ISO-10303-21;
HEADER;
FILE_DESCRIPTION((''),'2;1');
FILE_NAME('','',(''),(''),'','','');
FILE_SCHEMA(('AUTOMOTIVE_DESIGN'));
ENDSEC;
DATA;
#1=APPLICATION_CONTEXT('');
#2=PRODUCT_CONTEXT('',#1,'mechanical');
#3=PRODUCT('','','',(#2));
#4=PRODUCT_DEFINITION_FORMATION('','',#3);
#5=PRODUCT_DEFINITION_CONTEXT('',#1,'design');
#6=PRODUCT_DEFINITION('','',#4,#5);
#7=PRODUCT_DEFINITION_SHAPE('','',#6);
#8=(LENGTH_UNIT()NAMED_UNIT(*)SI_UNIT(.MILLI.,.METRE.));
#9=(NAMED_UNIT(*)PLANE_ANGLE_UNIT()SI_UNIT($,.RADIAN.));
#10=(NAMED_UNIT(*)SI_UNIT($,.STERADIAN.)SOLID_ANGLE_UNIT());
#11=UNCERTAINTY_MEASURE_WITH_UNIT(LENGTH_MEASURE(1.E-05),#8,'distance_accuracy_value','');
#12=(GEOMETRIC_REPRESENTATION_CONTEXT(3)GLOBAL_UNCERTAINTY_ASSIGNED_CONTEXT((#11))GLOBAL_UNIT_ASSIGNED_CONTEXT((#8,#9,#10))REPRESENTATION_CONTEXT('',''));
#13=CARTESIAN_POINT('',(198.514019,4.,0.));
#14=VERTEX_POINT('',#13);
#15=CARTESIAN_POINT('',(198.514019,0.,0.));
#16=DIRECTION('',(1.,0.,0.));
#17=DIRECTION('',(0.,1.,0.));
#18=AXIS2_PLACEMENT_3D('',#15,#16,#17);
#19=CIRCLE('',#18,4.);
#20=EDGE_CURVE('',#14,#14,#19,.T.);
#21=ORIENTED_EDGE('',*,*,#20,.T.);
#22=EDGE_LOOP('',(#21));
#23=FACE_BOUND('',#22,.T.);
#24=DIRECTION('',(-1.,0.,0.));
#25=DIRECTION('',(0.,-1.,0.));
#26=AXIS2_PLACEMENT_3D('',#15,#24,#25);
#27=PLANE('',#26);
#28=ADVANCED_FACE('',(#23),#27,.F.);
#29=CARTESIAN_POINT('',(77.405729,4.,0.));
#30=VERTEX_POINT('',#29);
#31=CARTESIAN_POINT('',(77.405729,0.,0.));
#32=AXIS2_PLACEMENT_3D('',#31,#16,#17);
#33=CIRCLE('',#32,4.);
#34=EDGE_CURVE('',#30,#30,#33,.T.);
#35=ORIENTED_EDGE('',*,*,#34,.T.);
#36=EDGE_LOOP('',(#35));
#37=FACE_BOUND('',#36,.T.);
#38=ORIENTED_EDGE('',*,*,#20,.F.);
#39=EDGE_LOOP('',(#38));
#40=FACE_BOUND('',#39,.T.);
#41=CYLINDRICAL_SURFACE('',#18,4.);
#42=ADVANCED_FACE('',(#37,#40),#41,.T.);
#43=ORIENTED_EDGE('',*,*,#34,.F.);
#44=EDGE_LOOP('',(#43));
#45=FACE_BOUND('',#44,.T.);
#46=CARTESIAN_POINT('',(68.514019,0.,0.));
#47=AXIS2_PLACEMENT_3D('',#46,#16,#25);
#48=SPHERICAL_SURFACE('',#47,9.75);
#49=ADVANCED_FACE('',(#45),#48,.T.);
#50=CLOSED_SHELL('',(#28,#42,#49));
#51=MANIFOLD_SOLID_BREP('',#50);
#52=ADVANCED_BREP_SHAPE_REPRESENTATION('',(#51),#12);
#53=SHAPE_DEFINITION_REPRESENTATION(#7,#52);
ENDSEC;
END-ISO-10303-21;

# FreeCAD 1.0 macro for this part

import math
import FreeCAD as App
import Part
import Sketcher
from FreeCAD import Vector

doc = App.newDocument("Part")
body = doc.addObject("PartDesign::Body", "Body")

# Sketch on XY plane
sketch1 = body.newObject("Sketcher::SketchObject", "Sketch")
sketch1.AttachmentSupport = (doc.getObject("XY_Plane"), [""])
sketch1.MapMode = "FlatFace"
sketch1.addGeometry(Part.LineSegment(Vector(198.514019, -4, 0), Vector(198.514019, 0, 0)), False)
sketch1.addGeometry(Part.LineSegment(Vector(198.514019, 0, 0), Vector(58.764019, 0, 0)), False)
sketch1.addGeometry(Part.ArcOfCircle(Part.Circle(Vector(68.514019, 0, 0), Vector(0, 0, 1), 9.75), math.radians(180), math.radians(335.779057)), False)
sketch1.addGeometry(Part.LineSegment(Vector(77.405729, -4, 0), Vector(198.514019, -4, 0)), False)
sketch1.addConstraint(Sketcher.Constraint("Coincident", 0, 2, 1, 1))
sketch1.addConstraint(Sketcher.Constraint("Coincident", 1, 2, 2, 1))
sketch1.addConstraint(Sketcher.Constraint("Coincident", 2, 2, 3, 1))
sketch1.addConstraint(Sketcher.Constraint("Coincident", 3, 2, 0, 1))
sketch1.addConstraint(Sketcher.Constraint("Vertical", 0))
sketch1.addConstraint(Sketcher.Constraint("Horizontal", 1))
sketch1.addConstraint(Sketcher.Constraint("Horizontal", 3))
sketch1.addConstraint(Sketcher.Constraint("PointOnObject", 2, 3, -1))
sketch1.addConstraint(Sketcher.Constraint("PointOnObject", 0, 2, -1))
sketch1.addConstraint(Sketcher.Constraint("DistanceY", 0, 1, 0, 2, 4.0))
sketch1.addConstraint(Sketcher.Constraint("Radius", 2, 9.75))
sketch1.addConstraint(Sketcher.Constraint("DistanceX", 2, 3, 0, 2, 130.0))
sketch1.addConstraint(Sketcher.Constraint("DistanceX", -1, 1, 2, 3, 68.514019))
revolution = body.newObject("PartDesign::Revolution", "Revolution")
revolution.Profile = sketch1
revolution.ReferenceAxis = (sketch1, ["H_Axis"])
revolution.Angle = 360

doc.recompute()
